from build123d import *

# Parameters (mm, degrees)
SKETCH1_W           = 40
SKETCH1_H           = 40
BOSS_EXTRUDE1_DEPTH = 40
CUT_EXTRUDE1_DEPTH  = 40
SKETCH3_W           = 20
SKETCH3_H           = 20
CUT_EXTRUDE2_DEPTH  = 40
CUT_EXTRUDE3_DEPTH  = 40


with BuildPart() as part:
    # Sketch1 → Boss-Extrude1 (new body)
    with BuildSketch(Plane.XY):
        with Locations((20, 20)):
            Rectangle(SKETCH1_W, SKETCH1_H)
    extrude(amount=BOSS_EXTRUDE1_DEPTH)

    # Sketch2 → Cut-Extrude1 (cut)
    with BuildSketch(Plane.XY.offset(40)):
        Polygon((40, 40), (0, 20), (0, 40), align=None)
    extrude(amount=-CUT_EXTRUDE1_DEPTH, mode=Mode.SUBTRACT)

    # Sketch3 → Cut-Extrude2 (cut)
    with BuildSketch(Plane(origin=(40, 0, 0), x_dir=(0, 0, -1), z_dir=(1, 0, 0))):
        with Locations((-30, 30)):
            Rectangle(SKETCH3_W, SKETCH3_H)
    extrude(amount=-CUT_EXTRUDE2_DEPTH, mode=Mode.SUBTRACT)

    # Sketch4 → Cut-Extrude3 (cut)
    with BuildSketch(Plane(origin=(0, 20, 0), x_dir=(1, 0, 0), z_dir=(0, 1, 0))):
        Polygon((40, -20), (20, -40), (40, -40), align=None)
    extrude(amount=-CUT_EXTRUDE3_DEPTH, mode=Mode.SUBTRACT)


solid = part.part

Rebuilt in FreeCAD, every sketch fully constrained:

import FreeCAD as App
import Part
import Sketcher
Q = App.Units.Quantity


def add_polygon(sketch, points):
    """Adds a closed chain of lines whose ends are joined by coincident constraints."""
    first, n = sketch.GeometryCount, len(points)
    for a, b in zip(points, points[1:] + points[:1]):
        sketch.addGeometry(Part.LineSegment(App.Vector(*a, 0), App.Vector(*b, 0)), False)
    for i in range(n):
        sketch.addConstraint(Sketcher.Constraint("Coincident", first + i, 2, first + (i + 1) % n, 1))

doc = App.newDocument("Part")
body = doc.addObject("PartDesign::Body", "Body")

# Sketch on XY plane
sketch1 = body.newObject("Sketcher::SketchObject", "Sketch")
sketch1.AttachmentSupport = (doc.getObject("XY_Plane"), [""])
sketch1.MapMode = "FlatFace"
add_polygon(sketch1, [(0, 40), (0, 0), (40, 0), (40, 40)])  # lines 0-3
sketch1.addConstraint([
    Sketcher.Constraint("Vertical", 0),
    Sketcher.Constraint("Horizontal", 1),
    Sketcher.Constraint("Vertical", 2),
    Sketcher.Constraint("Horizontal", 3),
    Sketcher.Constraint("Coincident", 0, 2, -1, 1),
    Sketcher.Constraint("Equal", 3, 0),
    Sketcher.Constraint("DistanceX", 1, 1, 1, 2, Q("40 mm")),
])
pad1 = body.newObject("PartDesign::Pad", "Pad")
pad1.Profile = sketch1
pad1.Length = 40

# Sketch on XY plane
sketch2 = body.newObject("Sketcher::SketchObject", "Sketch001")
sketch2.AttachmentSupport = (doc.getObject("XY_Plane"), [""])
sketch2.MapMode = "FlatFace"
sketch2.AttachmentOffset = App.Placement(App.Vector(0, 0, 40), App.Rotation())
add_polygon(sketch2, [(0, 20), (40, 40), (0, 40)])  # lines 0-2
sketch2.addConstraint([
    Sketcher.Constraint("Horizontal", 1),
    Sketcher.Constraint("Vertical", 2),
    Sketcher.Constraint("PointOnObject", 1, 2, -2),
    Sketcher.Constraint("DistanceX", 1, 2, 1, 1, Q("40 mm")),
    Sketcher.Constraint("DistanceY", 2, 2, 2, 1, Q("20 mm")),
    Sketcher.Constraint("DistanceY", -1, 1, 0, 2, Q("40 mm")),
])
pocket1 = body.newObject("PartDesign::Pocket", "Pocket")
pocket1.Profile = sketch2
pocket1.Length = 40

# Sketch on YZ plane
sketch3 = body.newObject("Sketcher::SketchObject", "Sketch002")
sketch3.AttachmentSupport = (doc.getObject("YZ_Plane"), [""])
sketch3.MapMode = "FlatFace"
sketch3.AttachmentOffset = App.Placement(App.Vector(0, 0, 40), App.Rotation())
add_polygon(sketch3, [(40, 40), (20, 40), (20, 20), (40, 20)])  # lines 0-3
sketch3.addConstraint([
    Sketcher.Constraint("Horizontal", 0),
    Sketcher.Constraint("Vertical", 1),
    Sketcher.Constraint("Horizontal", 2),
    Sketcher.Constraint("Vertical", 3),
    Sketcher.Constraint("Equal", 2, 1),
    Sketcher.Constraint("DistanceX", 0, 2, 0, 1, Q("20 mm")),
    Sketcher.Constraint("DistanceX", -1, 1, 0, 2, Q("20 mm")),
    Sketcher.Constraint("DistanceY", -1, 1, 0, 2, Q("40 mm")),
])
pocket2 = body.newObject("PartDesign::Pocket", "Pocket001")
pocket2.Profile = sketch3
pocket2.Length = 40

# Sketch on XZ plane
sketch4 = body.newObject("Sketcher::SketchObject", "Sketch003")
sketch4.AttachmentSupport = (doc.getObject("XZ_Plane"), [""])
sketch4.MapMode = "FlatFace"
sketch4.AttachmentOffset = App.Placement(App.Vector(0, 0, -20), App.Rotation())
add_polygon(sketch4, [(40, 20), (20, 40), (40, 40)])  # lines 0-2
sketch4.addConstraint([
    Sketcher.Constraint("Horizontal", 1),
    Sketcher.Constraint("Vertical", 2),
    Sketcher.Constraint("Equal", 1, 2),
    Sketcher.Constraint("DistanceX", 1, 1, 1, 2, Q("20 mm")),
    Sketcher.Constraint("DistanceX", -1, 1, 0, 2, Q("20 mm")),
    Sketcher.Constraint("DistanceY", -1, 1, 0, 2, Q("40 mm")),
])
pocket3 = body.newObject("PartDesign::Pocket", "Pocket002")
pocket3.Profile = sketch4
pocket3.Length = 40
pocket3.Reversed = True

doc.recompute()
